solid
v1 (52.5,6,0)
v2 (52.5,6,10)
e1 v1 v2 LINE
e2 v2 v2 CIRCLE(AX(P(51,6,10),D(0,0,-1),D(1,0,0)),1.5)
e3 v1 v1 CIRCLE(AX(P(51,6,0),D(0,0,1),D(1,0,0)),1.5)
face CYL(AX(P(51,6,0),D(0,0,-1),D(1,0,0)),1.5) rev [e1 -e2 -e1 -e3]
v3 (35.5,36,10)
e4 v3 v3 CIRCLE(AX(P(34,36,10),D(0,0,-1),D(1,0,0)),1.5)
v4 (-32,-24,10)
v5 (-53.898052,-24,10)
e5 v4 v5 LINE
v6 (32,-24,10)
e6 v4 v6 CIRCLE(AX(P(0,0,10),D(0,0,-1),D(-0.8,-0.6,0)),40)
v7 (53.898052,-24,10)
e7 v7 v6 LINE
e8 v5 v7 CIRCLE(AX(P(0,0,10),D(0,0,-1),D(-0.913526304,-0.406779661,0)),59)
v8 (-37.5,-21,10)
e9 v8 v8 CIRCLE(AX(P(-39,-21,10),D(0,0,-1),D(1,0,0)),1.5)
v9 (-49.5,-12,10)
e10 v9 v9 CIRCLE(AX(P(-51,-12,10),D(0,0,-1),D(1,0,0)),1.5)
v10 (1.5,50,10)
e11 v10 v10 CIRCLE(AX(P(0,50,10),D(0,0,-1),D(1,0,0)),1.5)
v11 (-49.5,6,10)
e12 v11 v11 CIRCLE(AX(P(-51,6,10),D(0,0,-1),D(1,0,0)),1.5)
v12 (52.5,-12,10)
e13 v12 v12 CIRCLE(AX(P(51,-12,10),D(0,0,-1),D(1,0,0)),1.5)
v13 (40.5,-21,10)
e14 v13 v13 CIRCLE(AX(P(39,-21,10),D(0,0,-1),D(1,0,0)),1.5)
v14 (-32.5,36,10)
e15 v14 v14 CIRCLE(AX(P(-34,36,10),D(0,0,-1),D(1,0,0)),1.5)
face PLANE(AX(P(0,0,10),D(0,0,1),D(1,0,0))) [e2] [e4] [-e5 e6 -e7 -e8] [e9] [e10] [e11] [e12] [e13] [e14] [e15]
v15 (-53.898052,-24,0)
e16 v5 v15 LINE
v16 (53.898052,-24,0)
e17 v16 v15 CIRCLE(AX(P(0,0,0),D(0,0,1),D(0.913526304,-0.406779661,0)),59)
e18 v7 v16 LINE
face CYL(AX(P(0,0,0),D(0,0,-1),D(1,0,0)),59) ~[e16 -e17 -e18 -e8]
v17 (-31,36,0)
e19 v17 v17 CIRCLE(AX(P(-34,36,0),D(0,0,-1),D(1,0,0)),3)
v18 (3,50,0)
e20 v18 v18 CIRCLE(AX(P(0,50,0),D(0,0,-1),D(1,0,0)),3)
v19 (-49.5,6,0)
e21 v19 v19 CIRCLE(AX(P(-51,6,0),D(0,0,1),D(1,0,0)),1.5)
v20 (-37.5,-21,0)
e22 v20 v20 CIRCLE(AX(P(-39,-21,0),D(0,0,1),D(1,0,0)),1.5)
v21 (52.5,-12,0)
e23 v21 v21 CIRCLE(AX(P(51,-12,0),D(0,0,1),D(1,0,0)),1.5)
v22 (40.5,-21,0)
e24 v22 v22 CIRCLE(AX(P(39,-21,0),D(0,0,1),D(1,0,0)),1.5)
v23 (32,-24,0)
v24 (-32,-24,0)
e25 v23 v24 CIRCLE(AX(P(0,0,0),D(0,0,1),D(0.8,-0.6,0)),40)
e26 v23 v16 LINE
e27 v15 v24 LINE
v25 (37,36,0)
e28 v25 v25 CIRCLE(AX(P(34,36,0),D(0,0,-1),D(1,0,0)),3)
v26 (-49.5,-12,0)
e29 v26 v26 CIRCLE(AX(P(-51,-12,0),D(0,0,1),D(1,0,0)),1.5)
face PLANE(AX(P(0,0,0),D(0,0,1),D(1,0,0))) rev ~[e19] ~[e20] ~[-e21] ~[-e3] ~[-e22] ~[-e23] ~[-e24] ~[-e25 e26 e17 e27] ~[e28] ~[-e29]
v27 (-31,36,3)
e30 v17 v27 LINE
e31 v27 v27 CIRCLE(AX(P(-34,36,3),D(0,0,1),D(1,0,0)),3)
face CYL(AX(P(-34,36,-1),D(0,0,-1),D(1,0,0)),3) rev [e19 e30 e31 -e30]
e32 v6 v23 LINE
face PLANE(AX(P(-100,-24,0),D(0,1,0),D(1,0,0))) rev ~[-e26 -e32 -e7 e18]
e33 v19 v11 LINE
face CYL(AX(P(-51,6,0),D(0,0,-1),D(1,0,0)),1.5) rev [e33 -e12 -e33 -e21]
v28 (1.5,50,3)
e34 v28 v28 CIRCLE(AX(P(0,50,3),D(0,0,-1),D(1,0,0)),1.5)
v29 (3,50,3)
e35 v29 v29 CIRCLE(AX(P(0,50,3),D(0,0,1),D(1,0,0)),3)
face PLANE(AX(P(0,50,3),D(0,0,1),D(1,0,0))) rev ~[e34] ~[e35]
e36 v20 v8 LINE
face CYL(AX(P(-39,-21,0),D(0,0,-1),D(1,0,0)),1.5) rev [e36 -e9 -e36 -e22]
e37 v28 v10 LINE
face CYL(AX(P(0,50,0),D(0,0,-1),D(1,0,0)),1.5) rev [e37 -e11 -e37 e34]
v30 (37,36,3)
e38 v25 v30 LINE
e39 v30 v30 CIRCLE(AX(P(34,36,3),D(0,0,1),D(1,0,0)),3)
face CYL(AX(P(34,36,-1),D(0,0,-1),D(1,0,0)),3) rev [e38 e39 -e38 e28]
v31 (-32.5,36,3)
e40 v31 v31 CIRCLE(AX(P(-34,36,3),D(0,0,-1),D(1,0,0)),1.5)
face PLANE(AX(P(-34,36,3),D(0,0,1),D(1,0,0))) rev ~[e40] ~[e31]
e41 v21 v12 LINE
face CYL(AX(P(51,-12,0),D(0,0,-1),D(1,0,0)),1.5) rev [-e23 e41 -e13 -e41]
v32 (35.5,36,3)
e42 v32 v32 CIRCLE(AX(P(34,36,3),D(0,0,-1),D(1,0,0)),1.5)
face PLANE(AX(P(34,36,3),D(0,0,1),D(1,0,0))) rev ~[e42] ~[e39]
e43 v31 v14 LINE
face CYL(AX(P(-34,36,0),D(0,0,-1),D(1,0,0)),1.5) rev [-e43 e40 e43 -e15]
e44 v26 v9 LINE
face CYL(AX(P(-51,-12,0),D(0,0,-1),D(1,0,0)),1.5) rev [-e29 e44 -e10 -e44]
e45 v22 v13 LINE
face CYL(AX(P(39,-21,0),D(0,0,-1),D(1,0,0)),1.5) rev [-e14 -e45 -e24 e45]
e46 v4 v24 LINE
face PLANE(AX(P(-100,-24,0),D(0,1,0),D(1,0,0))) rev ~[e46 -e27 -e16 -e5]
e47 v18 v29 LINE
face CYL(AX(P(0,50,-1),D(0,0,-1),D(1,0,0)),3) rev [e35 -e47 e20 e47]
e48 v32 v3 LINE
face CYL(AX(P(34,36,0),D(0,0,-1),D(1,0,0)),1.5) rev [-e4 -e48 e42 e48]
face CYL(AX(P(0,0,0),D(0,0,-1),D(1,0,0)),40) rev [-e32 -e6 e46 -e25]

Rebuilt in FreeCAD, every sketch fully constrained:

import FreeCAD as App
import Part
import Sketcher

V = App.Vector


def add_polygon(sketch, points):
    """Adds a closed chain of lines whose ends are joined by coincident constraints."""
    first, n = sketch.GeometryCount, len(points)
    for a, b in zip(points, points[1:] + points[:1]):
        sketch.addGeometry(Part.LineSegment(App.Vector(*a, 0), App.Vector(*b, 0)), False)
    for i in range(n):
        sketch.addConstraint(Sketcher.Constraint("Coincident", first + i, 2, first + (i + 1) % n, 1))

doc = App.newDocument("Part")
body = doc.addObject("PartDesign::Body", "Body")

# Sketch on XY plane
sketch1 = doc.addObject("Sketcher::SketchObject", "Sketch")
body.addObject(sketch1)
sketch1.AttachmentSupport = (doc.XY_Plane, [""])
sketch1.MapMode = "FlatFace"
sketch1.addGeometry(Part.Circle(V(39, -21, 0), V(0, 0, 1), 1.5), False)
sketch1.addConstraint([
    Sketcher.Constraint("Diameter", 0, 3.0),
    Sketcher.Constraint("DistanceX", -1, 1, 0, 3, 39.0),
    Sketcher.Constraint("DistanceY", 0, 3, -1, 1, 21.0),
])
pad1 = doc.addObject("PartDesign::Pad", "Pad")
body.addObject(pad1)
pad1.Profile = sketch1
pad1.Length = 100
body2 = doc.addObject("PartDesign::Body", "Body001")
body2.AllowCompound = True

# Sketch on XY plane
sketch2 = doc.addObject("Sketcher::SketchObject", "Sketch001")
body2.addObject(sketch2)
sketch2.AttachmentSupport = (doc.getObject("XY_Plane001"), [""])
sketch2.MapMode = "FlatFace"
sketch2.addGeometry(Part.Circle(V(-39, -21, 0), V(0, 0, 1), 1.5), False)
sketch2.addConstraint([
    Sketcher.Constraint("Diameter", 0, 3.0),
    Sketcher.Constraint("DistanceX", 0, 3, -1, 1, 39.0),
    Sketcher.Constraint("DistanceY", 0, 3, -1, 1, 21.0),
])
pad2 = doc.addObject("PartDesign::Pad", "Pad001")
body2.addObject(pad2)
pad2.Profile = sketch2
pad2.Length = 100
doc.recompute()

boolean = doc.addObject("PartDesign::Boolean", "Boolean")
body2.addObject(boolean)
boolean.Type = "Fuse"
boolean.addObjects([body])
body3 = doc.addObject("PartDesign::Body", "Body002")

# Sketch on XY plane
sketch3 = doc.addObject("Sketcher::SketchObject", "Sketch002")
body3.addObject(sketch3)
sketch3.AttachmentSupport = (doc.getObject("XY_Plane002"), [""])
sketch3.MapMode = "FlatFace"
sketch3.addGeometry(Part.Circle(V(0, 50, 0), V(0, 0, 1), 1.5), False)
sketch3.addConstraint([
    Sketcher.Constraint("PointOnObject", 0, 3, -2),
    Sketcher.Constraint("Diameter", 0, 3.0),
    Sketcher.Constraint("DistanceY", -1, 1, 0, 3, 50.0),
])
pad3 = doc.addObject("PartDesign::Pad", "Pad002")
body3.addObject(pad3)
pad3.Profile = sketch3
pad3.Length = 50
body4 = doc.addObject("PartDesign::Body", "Body003")

# Sketch on XY plane
sketch4 = doc.addObject("Sketcher::SketchObject", "Sketch003")
body4.addObject(sketch4)
sketch4.AttachmentSupport = (doc.getObject("XY_Plane003"), [""])
sketch4.MapMode = "FlatFace"
sketch4.AttachmentOffset = App.Placement(V(0, 0, -1), App.Rotation())
sketch4.addGeometry(Part.Circle(V(0, 50, 0), V(0, 0, 1), 3), False)
sketch4.addConstraint([
    Sketcher.Constraint("PointOnObject", 0, 3, -2),
    Sketcher.Constraint("Diameter", 0, 6.0),
    Sketcher.Constraint("DistanceY", -1, 1, 0, 3, 50.0),
])
pad4 = doc.addObject("PartDesign::Pad", "Pad003")
body4.addObject(pad4)
pad4.Profile = sketch4
pad4.Length = 4
body5 = doc.addObject("PartDesign::Body", "Body004")

# Sketch on XY plane
sketch5 = doc.addObject("Sketcher::SketchObject", "Sketch004")
body5.addObject(sketch5)
sketch5.AttachmentSupport = (doc.getObject("XY_Plane004"), [""])
sketch5.MapMode = "FlatFace"
add_polygon(sketch5, [(-100, -24), (-100, -124), (100, -124), (100, -24)])  # lines 0-3
sketch5.addConstraint([
    Sketcher.Constraint("Vertical", 0),
    Sketcher.Constraint("Horizontal", 1),
    Sketcher.Constraint("Vertical", 2),
    Sketcher.Constraint("Horizontal", 3),
    Sketcher.Constraint("DistanceX", 1, 1, 1, 2, 200.0),
    Sketcher.Constraint("DistanceY", 0, 2, 0, 1, 100.0),
    Sketcher.Constraint("DistanceX", 0, 2, -1, 1, 100.0),
    Sketcher.Constraint("DistanceY", 0, 2, -1, 1, 124.0),
])
pad5 = doc.addObject("PartDesign::Pad", "Pad004")
body5.addObject(pad5)
pad5.Profile = sketch5
pad5.Length = 32
body6 = doc.addObject("PartDesign::Body", "Body005")

# Sketch on XY plane
sketch6 = doc.addObject("Sketcher::SketchObject", "Sketch005")
body6.addObject(sketch6)
sketch6.AttachmentSupport = (doc.getObject("XY_Plane005"), [""])
sketch6.MapMode = "FlatFace"
sketch6.addGeometry(Part.Circle(V(-51, 6, 0), V(0, 0, 1), 1.5), False)
sketch6.addConstraint([
    Sketcher.Constraint("Diameter", 0, 3.0),
    Sketcher.Constraint("DistanceX", 0, 3, -1, 1, 51.0),
    Sketcher.Constraint("DistanceY", -1, 1, 0, 3, 6.0),
])
pad6 = doc.addObject("PartDesign::Pad", "Pad005")
body6.addObject(pad6)
pad6.Profile = sketch6
pad6.Length = 50
body7 = doc.addObject("PartDesign::Body", "Body006")

# Sketch on XY plane
sketch7 = doc.addObject("Sketcher::SketchObject", "Sketch006")
body7.addObject(sketch7)
sketch7.AttachmentSupport = (doc.getObject("XY_Plane006"), [""])
sketch7.MapMode = "FlatFace"
sketch7.addGeometry(Part.Circle(V(-24, 18, 0), V(0, 0, 1), 1.5), False)
sketch7.addConstraint([
    Sketcher.Constraint("Diameter", 0, 3.0),
    Sketcher.Constraint("DistanceX", 0, 3, -1, 1, 24.0),
    Sketcher.Constraint("DistanceY", -1, 1, 0, 3, 18.0),
])
pad7 = doc.addObject("PartDesign::Pad", "Pad006")
body7.addObject(pad7)
pad7.Profile = sketch7
pad7.Length = 50
body8 = doc.addObject("PartDesign::Body", "Body007")

# Sketch on XY plane
sketch8 = doc.addObject("Sketcher::SketchObject", "Sketch007")
body8.addObject(sketch8)
sketch8.AttachmentSupport = (doc.getObject("XY_Plane007"), [""])
sketch8.MapMode = "FlatFace"
sketch8.addGeometry(Part.Circle(V(24, 18, 0), V(0, 0, 1), 1.5), False)
sketch8.addConstraint([
    Sketcher.Constraint("Diameter", 0, 3.0),
    Sketcher.Constraint("DistanceX", -1, 1, 0, 3, 24.0),
    Sketcher.Constraint("DistanceY", -1, 1, 0, 3, 18.0),
])
pad8 = doc.addObject("PartDesign::Pad", "Pad007")
body8.addObject(pad8)
pad8.Profile = sketch8
pad8.Length = 50
body9 = doc.addObject("PartDesign::Body", "Body008")
body9.AllowCompound = True

# Sketch on XY plane
sketch9 = doc.addObject("Sketcher::SketchObject", "Sketch008")
body9.addObject(sketch9)
sketch9.AttachmentSupport = (doc.getObject("XY_Plane008"), [""])
sketch9.MapMode = "FlatFace"
sketch9.addGeometry(Part.Circle(V(51, 6, 0), V(0, 0, 1), 1.5), False)
sketch9.addConstraint([
    Sketcher.Constraint("Diameter", 0, 3.0),
    Sketcher.Constraint("DistanceX", -1, 1, 0, 3, 51.0),
    Sketcher.Constraint("DistanceY", -1, 1, 0, 3, 6.0),
])
pad9 = doc.addObject("PartDesign::Pad", "Pad008")
body9.addObject(pad9)
pad9.Profile = sketch9
pad9.Length = 50
doc.recompute()

boolean2 = doc.addObject("PartDesign::Boolean", "Boolean001")
body9.addObject(boolean2)
boolean2.Type = "Fuse"
boolean2.addObjects([body6])
doc.recompute()

boolean3 = doc.addObject("PartDesign::Boolean", "Boolean002")
body9.addObject(boolean3)
boolean3.Type = "Fuse"
boolean3.addObjects([body7])
doc.recompute()

boolean4 = doc.addObject("PartDesign::Boolean", "Boolean003")
body9.addObject(boolean4)
boolean4.Type = "Fuse"
boolean4.addObjects([body8])
body10 = doc.addObject("PartDesign::Body", "Body009")

# Sketch on XY plane
sketch10 = doc.addObject("Sketcher::SketchObject", "Sketch009")
body10.addObject(sketch10)
sketch10.AttachmentSupport = (doc.getObject("XY_Plane009"), [""])
sketch10.MapMode = "FlatFace"
sketch10.addGeometry(Part.Circle(V(24, 18, 0), V(0, 0, 1), 3), False)
sketch10.addConstraint([
    Sketcher.Constraint("Diameter", 0, 6.0),
    Sketcher.Constraint("DistanceX", -1, 1, 0, 3, 24.0),
    Sketcher.Constraint("DistanceY", -1, 1, 0, 3, 18.0),
])
pad10 = doc.addObject("PartDesign::Pad", "Pad009")
body10.addObject(pad10)
pad10.Profile = sketch10
pad10.Length = 4
body11 = doc.addObject("PartDesign::Body", "Body010")
body11.AllowCompound = True

# Sketch on XY plane
sketch11 = doc.addObject("Sketcher::SketchObject", "Sketch010")
body11.addObject(sketch11)
sketch11.AttachmentSupport = (doc.getObject("XY_Plane010"), [""])
sketch11.MapMode = "FlatFace"
sketch11.addGeometry(Part.Circle(V(-24, 18, 0), V(0, 0, 1), 3), False)
sketch11.addConstraint([
    Sketcher.Constraint("Diameter", 0, 6.0),
    Sketcher.Constraint("DistanceX", 0, 3, -1, 1, 24.0),
    Sketcher.Constraint("DistanceY", -1, 1, 0, 3, 18.0),
])
pad11 = doc.addObject("PartDesign::Pad", "Pad010")
body11.addObject(pad11)
pad11.Profile = sketch11
pad11.Length = 4
doc.recompute()

boolean5 = doc.addObject("PartDesign::Boolean", "Boolean004")
body11.addObject(boolean5)
boolean5.Type = "Fuse"
boolean5.addObjects([body10])
body12 = doc.addObject("PartDesign::Body", "Body011")
body12.AllowCompound = True
doc.recompute()

body11.Placement = App.Placement(V(0, 0, 7), App.Rotation(V(0, 0, 1), 0))
boolean6 = doc.addObject("PartDesign::Boolean", "Boolean005")
body12.addObject(boolean6)
boolean6.Type = "Fuse"
boolean6.addObjects([body11])
body13 = doc.addObject("PartDesign::Body", "Body012")

# Sketch on XY plane
sketch12 = doc.addObject("Sketcher::SketchObject", "Sketch011")
body13.addObject(sketch12)
sketch12.AttachmentSupport = (doc.getObject("XY_Plane012"), [""])
sketch12.MapMode = "FlatFace"
sketch12.addGeometry(Part.Circle(V(51, -12, 0), V(0, 0, 1), 1.5), False)
sketch12.addConstraint([
    Sketcher.Constraint("Diameter", 0, 3.0),
    Sketcher.Constraint("DistanceX", -1, 1, 0, 3, 51.0),
    Sketcher.Constraint("DistanceY", 0, 3, -1, 1, 12.0),
])
pad12 = doc.addObject("PartDesign::Pad", "Pad011")
body13.addObject(pad12)
pad12.Profile = sketch12
pad12.Length = 100
body14 = doc.addObject("PartDesign::Body", "Body013")
body14.AllowCompound = True

# Sketch on XY plane
sketch13 = doc.addObject("Sketcher::SketchObject", "Sketch012")
body14.addObject(sketch13)
sketch13.AttachmentSupport = (doc.getObject("XY_Plane013"), [""])
sketch13.MapMode = "FlatFace"
sketch13.addGeometry(Part.Circle(V(-51, -12, 0), V(0, 0, 1), 1.5), False)
sketch13.addConstraint([
    Sketcher.Constraint("Diameter", 0, 3.0),
    Sketcher.Constraint("DistanceX", 0, 3, -1, 1, 51.0),
    Sketcher.Constraint("DistanceY", 0, 3, -1, 1, 12.0),
])
pad13 = doc.addObject("PartDesign::Pad", "Pad012")
body14.addObject(pad13)
pad13.Profile = sketch13
pad13.Length = 100
doc.recompute()

boolean7 = doc.addObject("PartDesign::Boolean", "Boolean006")
body14.addObject(boolean7)
boolean7.Type = "Fuse"
boolean7.addObjects([body13])
body15 = doc.addObject("PartDesign::Body", "Body014")

# Sketch on XY plane
sketch14 = doc.addObject("Sketcher::SketchObject", "Sketch013")
body15.addObject(sketch14)
sketch14.AttachmentSupport = (doc.getObject("XY_Plane014"), [""])
sketch14.MapMode = "FlatFace"
sketch14.addGeometry(Part.Circle(V(51, -16, 0), V(0, 0, 1), 3), False)
sketch14.addConstraint([
    Sketcher.Constraint("Diameter", 0, 6.0),
    Sketcher.Constraint("DistanceX", -1, 1, 0, 3, 51.0),
    Sketcher.Constraint("DistanceY", 0, 3, -1, 1, 16.0),
])
pad14 = doc.addObject("PartDesign::Pad", "Pad013")
body15.addObject(pad14)
pad14.Profile = sketch14
pad14.Length = 4
body16 = doc.addObject("PartDesign::Body", "Body015")
body16.AllowCompound = True

# Sketch on XY plane
sketch15 = doc.addObject("Sketcher::SketchObject", "Sketch014")
body16.addObject(sketch15)
sketch15.AttachmentSupport = (doc.getObject("XY_Plane015"), [""])
sketch15.MapMode = "FlatFace"
sketch15.addGeometry(Part.Circle(V(-51, -16, 0), V(0, 0, 1), 3), False)
sketch15.addConstraint([
    Sketcher.Constraint("Diameter", 0, 6.0),
    Sketcher.Constraint("DistanceX", 0, 3, -1, 1, 51.0),
    Sketcher.Constraint("DistanceY", 0, 3, -1, 1, 16.0),
])
pad15 = doc.addObject("PartDesign::Pad", "Pad014")
body16.addObject(pad15)
pad15.Profile = sketch15
pad15.Length = 4
doc.recompute()

boolean8 = doc.addObject("PartDesign::Boolean", "Boolean007")
body16.addObject(boolean8)
boolean8.Type = "Fuse"
boolean8.addObjects([body15])
body17 = doc.addObject("PartDesign::Body", "Body016")
body17.AllowCompound = True
doc.recompute()

body16.Placement = App.Placement(V(0, 0, 25), App.Rotation(V(0, 0, 1), 0))
boolean9 = doc.addObject("PartDesign::Boolean", "Boolean008")
body17.addObject(boolean9)
boolean9.Type = "Fuse"
boolean9.addObjects([body16])
body18 = doc.addObject("PartDesign::Body", "Body017")

# Sketch on XY plane
sketch16 = doc.addObject("Sketcher::SketchObject", "Sketch015")
body18.addObject(sketch16)
sketch16.AttachmentSupport = (doc.getObject("XY_Plane017"), [""])
sketch16.MapMode = "FlatFace"
sketch16.addGeometry(Part.Circle(V(34, 36, 0), V(0, 0, 1), 1.5), False)
sketch16.addConstraint([
    Sketcher.Constraint("Diameter", 0, 3.0),
    Sketcher.Constraint("DistanceX", -1, 1, 0, 3, 34.0),
    Sketcher.Constraint("DistanceY", -1, 1, 0, 3, 36.0),
])
pad16 = doc.addObject("PartDesign::Pad", "Pad015")
body18.addObject(pad16)
pad16.Profile = sketch16
pad16.Length = 50
body19 = doc.addObject("PartDesign::Body", "Body018")
body19.AllowCompound = True

# Sketch on XY plane
sketch17 = doc.addObject("Sketcher::SketchObject", "Sketch016")
body19.addObject(sketch17)
sketch17.AttachmentSupport = (doc.getObject("XY_Plane018"), [""])
sketch17.MapMode = "FlatFace"
sketch17.addGeometry(Part.Circle(V(-34, 36, 0), V(0, 0, 1), 1.5), False)
sketch17.addConstraint([
    Sketcher.Constraint("Diameter", 0, 3.0),
    Sketcher.Constraint("DistanceX", 0, 3, -1, 1, 34.0),
    Sketcher.Constraint("DistanceY", -1, 1, 0, 3, 36.0),
])
pad17 = doc.addObject("PartDesign::Pad", "Pad016")
body19.addObject(pad17)
pad17.Profile = sketch17
pad17.Length = 50
doc.recompute()

boolean10 = doc.addObject("PartDesign::Boolean", "Boolean009")
body19.addObject(boolean10)
boolean10.Type = "Fuse"
boolean10.addObjects([body18])
body20 = doc.addObject("PartDesign::Body", "Body019")

# Sketch on XY plane
sketch18 = doc.addObject("Sketcher::SketchObject", "Sketch017")
body20.addObject(sketch18)
sketch18.AttachmentSupport = (doc.getObject("XY_Plane019"), [""])
sketch18.MapMode = "FlatFace"
sketch18.AttachmentOffset = App.Placement(V(0, 0, -1), App.Rotation())
sketch18.addGeometry(Part.Circle(V(-34, 36, 0), V(0, 0, 1), 3), False)
sketch18.addConstraint([
    Sketcher.Constraint("Diameter", 0, 6.0),
    Sketcher.Constraint("DistanceX", 0, 3, -1, 1, 34.0),
    Sketcher.Constraint("DistanceY", -1, 1, 0, 3, 36.0),
])
pad18 = doc.addObject("PartDesign::Pad", "Pad017")
body20.addObject(pad18)
pad18.Profile = sketch18
pad18.Length = 4
body21 = doc.addObject("PartDesign::Body", "Body020")
body21.AllowCompound = True

# Sketch on XY plane
sketch19 = doc.addObject("Sketcher::SketchObject", "Sketch018")
body21.addObject(sketch19)
sketch19.AttachmentSupport = (doc.getObject("XY_Plane020"), [""])
sketch19.MapMode = "FlatFace"
sketch19.AttachmentOffset = App.Placement(V(0, 0, -1), App.Rotation())
sketch19.addGeometry(Part.Circle(V(34, 36, 0), V(0, 0, 1), 3), False)
sketch19.addConstraint([
    Sketcher.Constraint("Diameter", 0, 6.0),
    Sketcher.Constraint("DistanceX", -1, 1, 0, 3, 34.0),
    Sketcher.Constraint("DistanceY", -1, 1, 0, 3, 36.0),
])
pad19 = doc.addObject("PartDesign::Pad", "Pad018")
body21.addObject(pad19)
pad19.Profile = sketch19
pad19.Length = 4
doc.recompute()

boolean11 = doc.addObject("PartDesign::Boolean", "Boolean010")
body21.addObject(boolean11)
boolean11.Type = "Fuse"
boolean11.addObjects([body20])
body22 = doc.addObject("PartDesign::Body", "Body021")

# Sketch on XY plane
sketch20 = doc.addObject("Sketcher::SketchObject", "Sketch019")
body22.addObject(sketch20)
sketch20.AttachmentSupport = (doc.getObject("XY_Plane021"), [""])
sketch20.MapMode = "FlatFace"
sketch20.addGeometry([
    Part.Circle(V(0, 0, 0), V(0, 0, 1), 59),
    Part.Circle(V(0, 0, 0), V(0, 0, 1), 40),
], False)
sketch20.addConstraint([
    Sketcher.Constraint("Coincident", 0, 3, -1, 1),
    Sketcher.Constraint("Coincident", 1, 3, -1, 1),
    Sketcher.Constraint("Diameter", 0, 118.0),
    Sketcher.Constraint("Diameter", 1, 80.0),
])
pad20 = doc.addObject("PartDesign::Pad", "Pad019")
body22.addObject(pad20)
pad20.Profile = sketch20
pad20.Length = 10
doc.recompute()

boolean12 = doc.addObject("PartDesign::Boolean", "Boolean011")
body22.addObject(boolean12)
boolean12.Type = "Cut"
boolean12.addObjects([body21])
doc.recompute()

boolean13 = doc.addObject("PartDesign::Boolean", "Boolean012")
body22.addObject(boolean13)
boolean13.Type = "Cut"
boolean13.addObjects([body19])
doc.recompute()

boolean14 = doc.addObject("PartDesign::Boolean", "Boolean013")
body22.addObject(boolean14)
boolean14.Type = "Cut"
boolean14.addObjects([body17])
doc.recompute()

boolean15 = doc.addObject("PartDesign::Boolean", "Boolean014")
body22.addObject(boolean15)
boolean15.Type = "Cut"
boolean15.addObjects([body14])
doc.recompute()

boolean16 = doc.addObject("PartDesign::Boolean", "Boolean015")
body22.addObject(boolean16)
boolean16.Type = "Cut"
boolean16.addObjects([body12])
doc.recompute()

boolean17 = doc.addObject("PartDesign::Boolean", "Boolean016")
body22.addObject(boolean17)
boolean17.Type = "Cut"
boolean17.addObjects([body9])
doc.recompute()

boolean18 = doc.addObject("PartDesign::Boolean", "Boolean017")
body22.addObject(boolean18)
boolean18.Type = "Cut"
boolean18.addObjects([body5])
doc.recompute()

boolean19 = doc.addObject("PartDesign::Boolean", "Boolean018")
body22.addObject(boolean19)
boolean19.Type = "Cut"
boolean19.addObjects([body4])
doc.recompute()

boolean20 = doc.addObject("PartDesign::Boolean", "Boolean019")
body22.addObject(boolean20)
boolean20.Type = "Cut"
boolean20.addObjects([body3])
doc.recompute()

boolean21 = doc.addObject("PartDesign::Boolean", "Boolean020")
body22.addObject(boolean21)
boolean21.Type = "Cut"
boolean21.addObjects([body2])

doc.recompute()
